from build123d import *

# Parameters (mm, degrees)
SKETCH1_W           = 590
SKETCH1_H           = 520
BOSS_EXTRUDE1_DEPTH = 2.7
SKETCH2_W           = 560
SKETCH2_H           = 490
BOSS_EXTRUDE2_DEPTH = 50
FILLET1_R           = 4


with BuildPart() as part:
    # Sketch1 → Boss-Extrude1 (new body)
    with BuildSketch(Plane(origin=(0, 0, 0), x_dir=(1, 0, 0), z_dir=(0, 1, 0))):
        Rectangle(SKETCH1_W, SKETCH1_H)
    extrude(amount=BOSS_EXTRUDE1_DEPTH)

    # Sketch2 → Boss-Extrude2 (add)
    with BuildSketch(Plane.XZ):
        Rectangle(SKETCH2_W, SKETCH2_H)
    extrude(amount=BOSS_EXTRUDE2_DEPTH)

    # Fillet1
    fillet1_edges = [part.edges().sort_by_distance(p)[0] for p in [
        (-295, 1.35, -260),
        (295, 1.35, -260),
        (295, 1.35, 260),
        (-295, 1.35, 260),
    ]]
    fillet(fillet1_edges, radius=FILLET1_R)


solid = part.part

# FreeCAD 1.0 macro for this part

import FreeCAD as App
import Part
import Sketcher
Q = App.Units.Quantity


def edges_at(feature, points):
    """Names of the edges that pass closest to the given points."""
    edges = feature.Shape.Edges
    near = lambda p: min(range(len(edges)), key=lambda i: edges[i].distToShape(Part.Vertex(*p))[0])
    return sorted({f"Edge{near(p) + 1}" for p in points})

doc = App.newDocument("Part")
body = doc.addObject("PartDesign::Body", "Body")

# Sketch on XZ plane
sketch1 = body.newObject("Sketcher::SketchObject", "Sketch")
sketch1.AttachmentSupport = (doc.getObject("XZ_Plane"), [""])
sketch1.MapMode = "FlatFace"
sketch1.addGeometry([
    Part.LineSegment(App.Vector(-295, -260, 0), App.Vector(-295, 260, 0)),
    Part.LineSegment(App.Vector(-295, 260, 0), App.Vector(295, 260, 0)),
    Part.LineSegment(App.Vector(295, 260, 0), App.Vector(295, -260, 0)),
    Part.LineSegment(App.Vector(295, -260, 0), App.Vector(-295, -260, 0)),
], False)
sketch1.addConstraint([
    Sketcher.Constraint("Coincident", 0, 2, 1, 1),
    Sketcher.Constraint("Coincident", 1, 2, 2, 1),
    Sketcher.Constraint("Coincident", 2, 2, 3, 1),
    Sketcher.Constraint("Coincident", 3, 2, 0, 1),
    Sketcher.Constraint("Vertical", 0),
    Sketcher.Constraint("Horizontal", 1),
    Sketcher.Constraint("Vertical", 2),
    Sketcher.Constraint("Horizontal", 3),
    Sketcher.Constraint("Symmetric", 0, 2, 2, 2, -1, 1),
    Sketcher.Constraint("DistanceX", 1, 1, 1, 2, Q("590 mm")),
    Sketcher.Constraint("DistanceY", 0, 1, 0, 2, Q("520 mm")),
])
pad1 = body.newObject("PartDesign::Pad", "Pad")
pad1.Profile = sketch1
pad1.Length = 2.7
pad1.Reversed = True

# Sketch on XZ plane
sketch2 = body.newObject("Sketcher::SketchObject", "Sketch001")
sketch2.AttachmentSupport = (doc.getObject("XZ_Plane"), [""])
sketch2.MapMode = "FlatFace"
sketch2.addGeometry([
    Part.LineSegment(App.Vector(-280, 245, 0), App.Vector(-280, -245, 0)),
    Part.LineSegment(App.Vector(-280, -245, 0), App.Vector(280, -245, 0)),
    Part.LineSegment(App.Vector(280, -245, 0), App.Vector(280, 245, 0)),
    Part.LineSegment(App.Vector(280, 245, 0), App.Vector(-280, 245, 0)),
], False)
sketch2.addConstraint([
    Sketcher.Constraint("Coincident", 0, 2, 1, 1),
    Sketcher.Constraint("Coincident", 1, 2, 2, 1),
    Sketcher.Constraint("Coincident", 2, 2, 3, 1),
    Sketcher.Constraint("Coincident", 3, 2, 0, 1),
    Sketcher.Constraint("Vertical", 0),
    Sketcher.Constraint("Horizontal", 1),
    Sketcher.Constraint("Vertical", 2),
    Sketcher.Constraint("Horizontal", 3),
    Sketcher.Constraint("Symmetric", 0, 2, 2, 2, -1, 1),
    Sketcher.Constraint("DistanceX", 1, 1, 1, 2, Q("560 mm")),
    Sketcher.Constraint("DistanceY", 0, 2, 0, 1, Q("490 mm")),
])
pad2 = body.newObject("PartDesign::Pad", "Pad001")
pad2.Profile = sketch2
pad2.Length = 50
doc.recompute()

fillet = body.newObject("PartDesign::Fillet", "Fillet")
fillet.Base = (pad2, edges_at(pad2, [
    (-295, 1.35, -260),
    (295, 1.35, -260),
    (295, 1.35, 260),
    (-295, 1.35, 260),
]))
fillet.Radius = 4

doc.recompute()
